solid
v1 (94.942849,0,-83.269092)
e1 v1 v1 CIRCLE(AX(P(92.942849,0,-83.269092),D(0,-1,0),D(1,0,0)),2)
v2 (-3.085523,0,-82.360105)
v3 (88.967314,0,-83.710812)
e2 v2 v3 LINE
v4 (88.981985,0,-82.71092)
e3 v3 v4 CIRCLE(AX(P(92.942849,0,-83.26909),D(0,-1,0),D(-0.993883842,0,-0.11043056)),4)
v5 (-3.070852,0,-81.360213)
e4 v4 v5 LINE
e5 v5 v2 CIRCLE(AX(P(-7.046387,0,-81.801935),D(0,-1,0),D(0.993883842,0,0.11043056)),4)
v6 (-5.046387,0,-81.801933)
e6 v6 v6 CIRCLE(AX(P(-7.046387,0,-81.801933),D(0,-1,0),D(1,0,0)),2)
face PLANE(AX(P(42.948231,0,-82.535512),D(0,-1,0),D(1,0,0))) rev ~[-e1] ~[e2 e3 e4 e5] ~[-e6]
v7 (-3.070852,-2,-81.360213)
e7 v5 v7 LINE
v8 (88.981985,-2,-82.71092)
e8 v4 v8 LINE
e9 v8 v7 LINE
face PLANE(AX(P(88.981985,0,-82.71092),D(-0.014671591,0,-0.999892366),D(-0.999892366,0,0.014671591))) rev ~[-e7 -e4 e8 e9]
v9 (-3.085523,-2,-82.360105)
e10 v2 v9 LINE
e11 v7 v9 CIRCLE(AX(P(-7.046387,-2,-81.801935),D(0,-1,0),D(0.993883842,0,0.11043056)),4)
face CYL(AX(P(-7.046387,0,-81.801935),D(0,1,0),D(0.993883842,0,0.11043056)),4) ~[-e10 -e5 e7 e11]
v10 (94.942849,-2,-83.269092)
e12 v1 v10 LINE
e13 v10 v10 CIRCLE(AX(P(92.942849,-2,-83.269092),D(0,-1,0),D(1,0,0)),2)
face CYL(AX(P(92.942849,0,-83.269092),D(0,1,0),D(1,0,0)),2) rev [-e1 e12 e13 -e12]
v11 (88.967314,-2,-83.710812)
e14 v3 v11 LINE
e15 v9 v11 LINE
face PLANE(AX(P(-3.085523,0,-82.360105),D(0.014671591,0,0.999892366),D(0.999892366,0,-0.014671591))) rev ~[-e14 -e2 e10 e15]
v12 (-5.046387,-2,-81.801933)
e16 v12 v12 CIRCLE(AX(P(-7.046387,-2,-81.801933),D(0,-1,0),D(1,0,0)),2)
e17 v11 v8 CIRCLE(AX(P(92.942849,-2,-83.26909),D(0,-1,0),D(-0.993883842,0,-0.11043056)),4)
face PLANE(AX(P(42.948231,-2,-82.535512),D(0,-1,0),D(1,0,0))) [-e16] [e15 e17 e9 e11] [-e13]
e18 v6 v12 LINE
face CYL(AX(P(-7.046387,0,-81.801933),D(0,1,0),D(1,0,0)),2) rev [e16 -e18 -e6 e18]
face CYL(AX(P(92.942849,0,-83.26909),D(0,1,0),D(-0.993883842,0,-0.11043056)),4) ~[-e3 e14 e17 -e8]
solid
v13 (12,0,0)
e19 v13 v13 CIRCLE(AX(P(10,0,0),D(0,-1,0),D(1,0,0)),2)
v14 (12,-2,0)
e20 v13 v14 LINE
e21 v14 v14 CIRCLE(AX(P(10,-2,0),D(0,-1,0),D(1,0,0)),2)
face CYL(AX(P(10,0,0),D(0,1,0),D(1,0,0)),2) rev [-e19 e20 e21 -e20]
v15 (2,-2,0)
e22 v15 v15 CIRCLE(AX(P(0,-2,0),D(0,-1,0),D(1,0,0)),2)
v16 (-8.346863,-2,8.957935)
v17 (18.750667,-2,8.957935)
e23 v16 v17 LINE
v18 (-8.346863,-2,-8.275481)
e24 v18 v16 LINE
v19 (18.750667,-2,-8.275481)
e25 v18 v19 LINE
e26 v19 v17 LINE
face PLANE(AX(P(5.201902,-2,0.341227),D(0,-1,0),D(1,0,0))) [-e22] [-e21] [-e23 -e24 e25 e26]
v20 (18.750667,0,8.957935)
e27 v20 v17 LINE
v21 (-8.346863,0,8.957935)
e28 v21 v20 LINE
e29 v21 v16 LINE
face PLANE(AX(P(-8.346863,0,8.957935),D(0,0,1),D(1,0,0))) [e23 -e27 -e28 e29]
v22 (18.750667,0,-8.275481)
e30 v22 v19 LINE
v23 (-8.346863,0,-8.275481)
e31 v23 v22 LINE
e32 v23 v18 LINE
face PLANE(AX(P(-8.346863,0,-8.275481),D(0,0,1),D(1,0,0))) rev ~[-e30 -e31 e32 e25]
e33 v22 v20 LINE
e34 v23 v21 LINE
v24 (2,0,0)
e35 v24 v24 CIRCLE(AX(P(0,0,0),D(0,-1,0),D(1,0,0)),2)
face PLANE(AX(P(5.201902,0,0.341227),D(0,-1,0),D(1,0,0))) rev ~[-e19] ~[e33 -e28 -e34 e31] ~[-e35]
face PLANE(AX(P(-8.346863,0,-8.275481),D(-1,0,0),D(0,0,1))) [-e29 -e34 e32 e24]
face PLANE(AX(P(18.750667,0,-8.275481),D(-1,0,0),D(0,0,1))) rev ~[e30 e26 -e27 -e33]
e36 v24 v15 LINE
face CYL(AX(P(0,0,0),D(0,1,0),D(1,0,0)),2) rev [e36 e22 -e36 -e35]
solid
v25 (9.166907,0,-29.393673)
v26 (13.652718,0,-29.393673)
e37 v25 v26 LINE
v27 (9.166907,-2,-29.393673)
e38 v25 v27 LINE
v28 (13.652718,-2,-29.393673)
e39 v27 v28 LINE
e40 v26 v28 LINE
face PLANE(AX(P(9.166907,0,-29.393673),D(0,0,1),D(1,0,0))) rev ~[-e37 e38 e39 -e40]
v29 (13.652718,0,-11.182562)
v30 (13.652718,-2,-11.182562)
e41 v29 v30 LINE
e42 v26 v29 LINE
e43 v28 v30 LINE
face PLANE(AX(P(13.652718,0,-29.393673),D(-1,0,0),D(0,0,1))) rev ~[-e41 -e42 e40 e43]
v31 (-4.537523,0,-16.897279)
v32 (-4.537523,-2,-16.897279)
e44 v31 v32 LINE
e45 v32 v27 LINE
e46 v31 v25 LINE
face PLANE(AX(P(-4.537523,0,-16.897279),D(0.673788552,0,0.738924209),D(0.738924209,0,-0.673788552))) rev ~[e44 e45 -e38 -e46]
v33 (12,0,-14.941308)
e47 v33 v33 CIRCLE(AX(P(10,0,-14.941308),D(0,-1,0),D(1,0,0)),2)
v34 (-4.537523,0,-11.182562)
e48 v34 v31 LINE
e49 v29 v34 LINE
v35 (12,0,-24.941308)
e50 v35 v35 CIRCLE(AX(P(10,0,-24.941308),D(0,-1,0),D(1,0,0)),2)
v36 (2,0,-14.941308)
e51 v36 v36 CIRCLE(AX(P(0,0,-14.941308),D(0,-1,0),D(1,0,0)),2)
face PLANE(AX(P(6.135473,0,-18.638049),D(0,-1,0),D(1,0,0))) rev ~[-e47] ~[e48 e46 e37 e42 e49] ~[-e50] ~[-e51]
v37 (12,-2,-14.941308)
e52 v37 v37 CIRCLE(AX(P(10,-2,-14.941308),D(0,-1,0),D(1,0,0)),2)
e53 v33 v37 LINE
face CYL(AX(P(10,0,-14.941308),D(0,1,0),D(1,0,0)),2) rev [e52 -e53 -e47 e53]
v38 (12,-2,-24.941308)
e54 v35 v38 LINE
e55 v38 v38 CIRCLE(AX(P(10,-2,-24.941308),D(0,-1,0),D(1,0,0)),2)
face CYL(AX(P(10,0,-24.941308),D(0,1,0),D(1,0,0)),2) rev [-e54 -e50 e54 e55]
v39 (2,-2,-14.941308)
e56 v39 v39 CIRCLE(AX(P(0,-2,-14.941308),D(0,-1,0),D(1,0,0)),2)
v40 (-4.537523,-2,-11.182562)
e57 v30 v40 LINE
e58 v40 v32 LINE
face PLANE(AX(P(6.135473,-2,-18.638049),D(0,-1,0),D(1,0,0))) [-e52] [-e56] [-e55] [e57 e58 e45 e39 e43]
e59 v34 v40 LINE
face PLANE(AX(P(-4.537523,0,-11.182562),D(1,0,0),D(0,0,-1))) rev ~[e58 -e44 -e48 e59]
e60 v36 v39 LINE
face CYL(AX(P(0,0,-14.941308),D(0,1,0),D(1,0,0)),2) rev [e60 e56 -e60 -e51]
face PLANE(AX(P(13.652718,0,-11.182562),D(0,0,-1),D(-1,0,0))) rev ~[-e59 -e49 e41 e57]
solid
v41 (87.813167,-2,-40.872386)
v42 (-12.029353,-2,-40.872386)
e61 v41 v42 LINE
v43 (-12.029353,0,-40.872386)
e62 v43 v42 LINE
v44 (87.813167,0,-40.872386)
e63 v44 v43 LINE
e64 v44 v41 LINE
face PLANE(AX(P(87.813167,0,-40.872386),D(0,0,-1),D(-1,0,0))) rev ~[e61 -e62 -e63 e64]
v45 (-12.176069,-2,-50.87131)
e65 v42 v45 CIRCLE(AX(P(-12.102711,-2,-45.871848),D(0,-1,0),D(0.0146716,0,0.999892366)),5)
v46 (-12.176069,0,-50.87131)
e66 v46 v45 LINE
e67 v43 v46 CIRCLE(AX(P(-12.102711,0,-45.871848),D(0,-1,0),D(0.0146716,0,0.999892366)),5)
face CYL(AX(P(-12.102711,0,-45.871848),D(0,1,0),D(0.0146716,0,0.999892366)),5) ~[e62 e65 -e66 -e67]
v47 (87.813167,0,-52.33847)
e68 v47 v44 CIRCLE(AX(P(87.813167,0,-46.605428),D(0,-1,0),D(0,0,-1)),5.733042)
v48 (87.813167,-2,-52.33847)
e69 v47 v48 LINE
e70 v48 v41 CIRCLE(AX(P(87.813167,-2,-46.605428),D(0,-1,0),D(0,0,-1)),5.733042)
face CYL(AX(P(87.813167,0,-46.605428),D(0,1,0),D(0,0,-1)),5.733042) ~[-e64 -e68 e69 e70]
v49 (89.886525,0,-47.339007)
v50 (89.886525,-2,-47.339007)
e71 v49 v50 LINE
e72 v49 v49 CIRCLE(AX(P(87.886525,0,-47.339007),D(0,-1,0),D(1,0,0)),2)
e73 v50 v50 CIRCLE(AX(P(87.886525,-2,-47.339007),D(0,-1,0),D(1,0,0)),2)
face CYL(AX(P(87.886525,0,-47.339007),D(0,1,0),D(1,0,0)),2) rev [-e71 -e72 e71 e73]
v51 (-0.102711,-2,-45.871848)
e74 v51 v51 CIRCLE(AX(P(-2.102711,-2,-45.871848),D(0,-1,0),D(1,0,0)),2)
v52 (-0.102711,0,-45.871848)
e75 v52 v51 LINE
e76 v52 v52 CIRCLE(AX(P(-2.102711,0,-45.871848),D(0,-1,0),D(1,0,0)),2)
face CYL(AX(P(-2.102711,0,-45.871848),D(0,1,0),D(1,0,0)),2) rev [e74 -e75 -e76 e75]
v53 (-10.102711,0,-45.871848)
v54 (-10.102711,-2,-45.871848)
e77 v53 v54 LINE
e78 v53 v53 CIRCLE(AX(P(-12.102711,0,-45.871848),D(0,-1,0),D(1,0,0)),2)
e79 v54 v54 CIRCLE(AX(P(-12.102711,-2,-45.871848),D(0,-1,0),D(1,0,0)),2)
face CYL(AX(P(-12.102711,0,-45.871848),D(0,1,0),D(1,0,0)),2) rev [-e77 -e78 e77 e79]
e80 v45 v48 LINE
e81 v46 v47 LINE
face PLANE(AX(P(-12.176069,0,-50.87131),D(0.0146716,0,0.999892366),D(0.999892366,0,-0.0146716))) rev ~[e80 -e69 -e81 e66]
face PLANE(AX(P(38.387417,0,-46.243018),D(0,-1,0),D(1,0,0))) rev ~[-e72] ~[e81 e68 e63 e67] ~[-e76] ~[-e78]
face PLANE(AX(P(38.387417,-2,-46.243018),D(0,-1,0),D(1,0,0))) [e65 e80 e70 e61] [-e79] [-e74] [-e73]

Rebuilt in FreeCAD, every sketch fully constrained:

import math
import FreeCAD as App
import Part
import Sketcher

V = App.Vector
Q = App.Units.Quantity


def add_polygon(sketch, points):
    """Adds a closed chain of lines whose ends are joined by coincident constraints."""
    first, n = sketch.GeometryCount, len(points)
    for a, b in zip(points, points[1:] + points[:1]):
        sketch.addGeometry(Part.LineSegment(App.Vector(*a, 0), App.Vector(*b, 0)), False)
    for i in range(n):
        sketch.addConstraint(Sketcher.Constraint("Coincident", first + i, 2, first + (i + 1) % n, 1))

doc = App.newDocument("Part")
body = doc.addObject("PartDesign::Body", "Body")

# Sketch on XZ plane
sketch1 = body.newObject("Sketcher::SketchObject", "Sketch")
sketch1.AttachmentSupport = (doc.getObject("XZ_Plane"), [""])
sketch1.MapMode = "FlatFace"
add_polygon(sketch1, [(-8.346863, 8.957935), (-8.346863, -8.275481), (18.750667, -8.275481), (18.750667, 8.957935)])  # lines 0-3
sketch1.addGeometry(Part.Circle(V(0, 0, 0), V(0, 0, 1), 2), False)  # 4
sketch1.addGeometry(Part.Circle(V(10, 0, 0), V(0, 0, 1), 2), False)  # 5
sketch1.addConstraint([
    Sketcher.Constraint("Vertical", 0),
    Sketcher.Constraint("Horizontal", 1),
    Sketcher.Constraint("Vertical", 2),
    Sketcher.Constraint("Horizontal", 3),
    Sketcher.Constraint("Coincident", 4, 3, -1, 1),
    Sketcher.Constraint("Equal", 4, 5),
    Sketcher.Constraint("PointOnObject", 5, 3, -1),
    Sketcher.Constraint("Diameter", 4, Q("4 mm")),
    Sketcher.Constraint("DistanceX", -1, 1, 5, 3, Q("10 mm")),
    Sketcher.Constraint("DistanceX", 1, 1, 1, 2, Q("27.097531 mm")),
    Sketcher.Constraint("DistanceY", 0, 2, 0, 1, Q("17.233416 mm")),
    Sketcher.Constraint("DistanceY", 0, 2, -1, 1, Q("8.275481 mm")),
    Sketcher.Constraint("DistanceX", 0, 2, -1, 1, Q("8.346863 mm")),
])
pad1 = body.newObject("PartDesign::Pad", "Pad")
pad1.Profile = sketch1
pad1.Length = 2
body2 = doc.addObject("PartDesign::Body", "Body001")

# Sketch on XZ plane
sketch2 = body2.newObject("Sketcher::SketchObject", "Sketch001")
sketch2.AttachmentSupport = (doc.getObject("XZ_Plane001"), [""])
sketch2.MapMode = "FlatFace"
add_polygon(sketch2, [(13.652718, -11.182562), (-4.537523, -11.182562), (-4.537523, -16.897279), (9.166907, -29.393673), (13.652718, -29.393673)])  # lines 0-4
sketch2.addGeometry(Part.Circle(V(10, -24.941308, 0), V(0, 0, 1), 2), False)  # 5
sketch2.addGeometry(Part.Circle(V(0, -14.941308, 0), V(0, 0, 1), 2), False)  # 6
sketch2.addGeometry(Part.Circle(V(10, -14.941308, 0), V(0, 0, 1), 2), False)  # 7
sketch2.addConstraint([
    Sketcher.Constraint("Horizontal", 0),
    Sketcher.Constraint("Vertical", 1),
    Sketcher.Constraint("Horizontal", 3),
    Sketcher.Constraint("Vertical", 4),
    Sketcher.Constraint("Equal", 5, 6),
    Sketcher.Constraint("Equal", 6, 7),
    Sketcher.Constraint("PointOnObject", 6, 3, -2),
    Sketcher.Constraint("Horizontal", 6, 3, 7, 3),
    Sketcher.Constraint("Vertical", 5, 3, 7, 3),
    Sketcher.Constraint("Diameter", 5, Q("4 mm")),
    Sketcher.Constraint("DistanceX", -1, 1, 5, 3, Q("10 mm")),
    Sketcher.Constraint("DistanceY", 5, 3, 6, 3, Q("10 mm")),
    Sketcher.Constraint("DistanceX", 0, 2, 0, 1, Q("18.190241 mm")),
    Sketcher.Constraint("DistanceX", 3, 1, 3, 2, Q("4.485811 mm")),
    Sketcher.Constraint("DistanceY", 4, 1, 4, 2, Q("18.211111 mm")),
    Sketcher.Constraint("DistanceY", 1, 2, 1, 1, Q("5.714717 mm")),
    Sketcher.Constraint("DistanceY", 1, 2, -1, 1, Q("16.897279 mm")),
    Sketcher.Constraint("DistanceY", 1, 2, 6, 3, Q("1.955971 mm")),
    Sketcher.Constraint("DistanceX", 5, 3, 3, 2, Q("3.652718 mm")),
])
pad2 = body2.newObject("PartDesign::Pad", "Pad001")
pad2.Profile = sketch2
pad2.Length = 2
body3 = doc.addObject("PartDesign::Body", "Body002")

# Sketch on XZ plane
sketch3 = body3.newObject("Sketcher::SketchObject", "Sketch002")
sketch3.AttachmentSupport = (doc.getObject("XZ_Plane002"), [""])
sketch3.MapMode = "FlatFace"
sketch3.addGeometry([
    Part.LineSegment(V(87.813167, -40.872386, 0), V(-12.029353, -40.872386, 0)),  # 0
    Part.ArcOfCircle(Part.Circle(V(-12.102711, -45.871848, 0), V(0, 0, 1), 5), math.radians(89.159349), math.radians(269.159349)),  # 1
    Part.LineSegment(V(-12.176069, -50.87131, 0), V(87.813167, -52.33847, 0)),  # 2
    Part.ArcOfCircle(Part.Circle(V(87.813167, -46.605428, 0), V(0, 0, 1), 5.733042), math.radians(-90), math.radians(90)),  # 3
    Part.Circle(V(87.886525, -47.339007, 0), V(0, 0, 1), 2),  # 4
    Part.Circle(V(-12.102711, -45.871848, 0), V(0, 0, 1), 2),  # 5
    Part.Circle(V(-2.102711, -45.871848, 0), V(0, 0, 1), 2),  # 6
], False)
sketch3.addConstraint([
    Sketcher.Constraint("Coincident", 0, 2, 1, 1),
    Sketcher.Constraint("Tangent", 1, 2, 2, 1),
    Sketcher.Constraint("Coincident", 2, 2, 3, 1),
    Sketcher.Constraint("Tangent", 3, 2, 0, 1),
    Sketcher.Constraint("Horizontal", 0),
    Sketcher.Constraint("Coincident", 5, 3, 1, 3),
    Sketcher.Constraint("Equal", 4, 5),
    Sketcher.Constraint("Equal", 5, 6),
    Sketcher.Constraint("Horizontal", 5, 3, 6, 3),
    Sketcher.Constraint("Vertical", 3, 3, 2, 2),
    Sketcher.Constraint("Diameter", 4, Q("4 mm")),
    Sketcher.Constraint("Radius", 1, Q("5 mm")),
    Sketcher.Constraint("Distance", 2, Q("99.999999 mm")),
    Sketcher.Constraint("DistanceX", 1, 3, 6, 3, Q("10 mm")),
    Sketcher.Constraint("Radius", 3, Q("5.733042 mm")),
    Sketcher.Constraint("DistanceX", 0, 2, 0, 1, Q("99.84252 mm")),
    Sketcher.Constraint("DistanceX", 1, 3, -1, 1, Q("12.102711 mm")),
    Sketcher.Constraint("DistanceY", 3, 3, -1, 1, Q("46.605428 mm")),
    Sketcher.Constraint("DistanceY", 4, 3, 3, 3, Q("0.733579 mm")),
    Sketcher.Constraint("DistanceX", 0, 2, 4, 3, Q("99.915878 mm")),
])
pad3 = body3.newObject("PartDesign::Pad", "Pad002")
pad3.Profile = sketch3
pad3.Length = 2
body4 = doc.addObject("PartDesign::Body", "Body003")

# Sketch on XZ plane
sketch4 = body4.newObject("Sketcher::SketchObject", "Sketch003")
sketch4.AttachmentSupport = (doc.getObject("XZ_Plane003"), [""])
sketch4.MapMode = "FlatFace"
sketch4.addGeometry([
    Part.ArcOfCircle(Part.Circle(V(92.942849, -83.26909, 0), V(0, 0, 1), 4), math.radians(-173.659864), math.radians(171.97863)),  # 0
    Part.LineSegment(V(88.981985, -82.71092, 0), V(-3.070852, -81.360213, 0)),  # 1
    Part.ArcOfCircle(Part.Circle(V(-7.046387, -81.801935, 0), V(0, 0, 1), 4), math.radians(6.340136), math.radians(351.97863)),  # 2
    Part.LineSegment(V(-3.085523, -82.360105, 0), V(88.967314, -83.710812, 0)),  # 3
    Part.Circle(V(92.942849, -83.269092, 0), V(0, 0, 1), 2),  # 4
    Part.Circle(V(-7.046387, -81.801933, 0), V(0, 0, 1), 2),  # 5
], False)
sketch4.addConstraint([
    Sketcher.Constraint("Coincident", 0, 2, 1, 1),
    Sketcher.Constraint("Coincident", 1, 2, 2, 1),
    Sketcher.Constraint("Coincident", 2, 2, 3, 1),
    Sketcher.Constraint("Coincident", 3, 2, 0, 1),
    Sketcher.Constraint("Coincident", 4, 3, 0, 3),
    Sketcher.Constraint("Coincident", 5, 3, 2, 3),
    Sketcher.Constraint("Equal", 0, 2),
    Sketcher.Constraint("Equal", 4, 5),
    Sketcher.Constraint("Parallel", 1, 3),
    Sketcher.Constraint("Equal", 1, 3),
    Sketcher.Constraint("Diameter", 4, Q("4 mm")),
    Sketcher.Constraint("Radius", 0, Q("4 mm")),
    Sketcher.Constraint("DistanceX", 1, 2, 4, 3, Q("96.013701 mm")),
    Sketcher.Constraint("DistanceY", 3, 2, 1, 2, Q("2.350599 mm")),
    Sketcher.Constraint("DistanceX", -1, 1, 0, 3, Q("92.942849 mm")),
    Sketcher.Constraint("DistanceY", 0, 3, -1, 1, Q("83.26909 mm")),
    Sketcher.Constraint("DistanceY", 0, 2, -1, 1, Q("82.71092 mm")),
    Sketcher.Constraint("DistanceY", 4, 3, 5, 3, Q("1.467159 mm")),
])
pad4 = body4.newObject("PartDesign::Pad", "Pad003")
pad4.Profile = sketch4
pad4.Length = 2

doc.recompute()
